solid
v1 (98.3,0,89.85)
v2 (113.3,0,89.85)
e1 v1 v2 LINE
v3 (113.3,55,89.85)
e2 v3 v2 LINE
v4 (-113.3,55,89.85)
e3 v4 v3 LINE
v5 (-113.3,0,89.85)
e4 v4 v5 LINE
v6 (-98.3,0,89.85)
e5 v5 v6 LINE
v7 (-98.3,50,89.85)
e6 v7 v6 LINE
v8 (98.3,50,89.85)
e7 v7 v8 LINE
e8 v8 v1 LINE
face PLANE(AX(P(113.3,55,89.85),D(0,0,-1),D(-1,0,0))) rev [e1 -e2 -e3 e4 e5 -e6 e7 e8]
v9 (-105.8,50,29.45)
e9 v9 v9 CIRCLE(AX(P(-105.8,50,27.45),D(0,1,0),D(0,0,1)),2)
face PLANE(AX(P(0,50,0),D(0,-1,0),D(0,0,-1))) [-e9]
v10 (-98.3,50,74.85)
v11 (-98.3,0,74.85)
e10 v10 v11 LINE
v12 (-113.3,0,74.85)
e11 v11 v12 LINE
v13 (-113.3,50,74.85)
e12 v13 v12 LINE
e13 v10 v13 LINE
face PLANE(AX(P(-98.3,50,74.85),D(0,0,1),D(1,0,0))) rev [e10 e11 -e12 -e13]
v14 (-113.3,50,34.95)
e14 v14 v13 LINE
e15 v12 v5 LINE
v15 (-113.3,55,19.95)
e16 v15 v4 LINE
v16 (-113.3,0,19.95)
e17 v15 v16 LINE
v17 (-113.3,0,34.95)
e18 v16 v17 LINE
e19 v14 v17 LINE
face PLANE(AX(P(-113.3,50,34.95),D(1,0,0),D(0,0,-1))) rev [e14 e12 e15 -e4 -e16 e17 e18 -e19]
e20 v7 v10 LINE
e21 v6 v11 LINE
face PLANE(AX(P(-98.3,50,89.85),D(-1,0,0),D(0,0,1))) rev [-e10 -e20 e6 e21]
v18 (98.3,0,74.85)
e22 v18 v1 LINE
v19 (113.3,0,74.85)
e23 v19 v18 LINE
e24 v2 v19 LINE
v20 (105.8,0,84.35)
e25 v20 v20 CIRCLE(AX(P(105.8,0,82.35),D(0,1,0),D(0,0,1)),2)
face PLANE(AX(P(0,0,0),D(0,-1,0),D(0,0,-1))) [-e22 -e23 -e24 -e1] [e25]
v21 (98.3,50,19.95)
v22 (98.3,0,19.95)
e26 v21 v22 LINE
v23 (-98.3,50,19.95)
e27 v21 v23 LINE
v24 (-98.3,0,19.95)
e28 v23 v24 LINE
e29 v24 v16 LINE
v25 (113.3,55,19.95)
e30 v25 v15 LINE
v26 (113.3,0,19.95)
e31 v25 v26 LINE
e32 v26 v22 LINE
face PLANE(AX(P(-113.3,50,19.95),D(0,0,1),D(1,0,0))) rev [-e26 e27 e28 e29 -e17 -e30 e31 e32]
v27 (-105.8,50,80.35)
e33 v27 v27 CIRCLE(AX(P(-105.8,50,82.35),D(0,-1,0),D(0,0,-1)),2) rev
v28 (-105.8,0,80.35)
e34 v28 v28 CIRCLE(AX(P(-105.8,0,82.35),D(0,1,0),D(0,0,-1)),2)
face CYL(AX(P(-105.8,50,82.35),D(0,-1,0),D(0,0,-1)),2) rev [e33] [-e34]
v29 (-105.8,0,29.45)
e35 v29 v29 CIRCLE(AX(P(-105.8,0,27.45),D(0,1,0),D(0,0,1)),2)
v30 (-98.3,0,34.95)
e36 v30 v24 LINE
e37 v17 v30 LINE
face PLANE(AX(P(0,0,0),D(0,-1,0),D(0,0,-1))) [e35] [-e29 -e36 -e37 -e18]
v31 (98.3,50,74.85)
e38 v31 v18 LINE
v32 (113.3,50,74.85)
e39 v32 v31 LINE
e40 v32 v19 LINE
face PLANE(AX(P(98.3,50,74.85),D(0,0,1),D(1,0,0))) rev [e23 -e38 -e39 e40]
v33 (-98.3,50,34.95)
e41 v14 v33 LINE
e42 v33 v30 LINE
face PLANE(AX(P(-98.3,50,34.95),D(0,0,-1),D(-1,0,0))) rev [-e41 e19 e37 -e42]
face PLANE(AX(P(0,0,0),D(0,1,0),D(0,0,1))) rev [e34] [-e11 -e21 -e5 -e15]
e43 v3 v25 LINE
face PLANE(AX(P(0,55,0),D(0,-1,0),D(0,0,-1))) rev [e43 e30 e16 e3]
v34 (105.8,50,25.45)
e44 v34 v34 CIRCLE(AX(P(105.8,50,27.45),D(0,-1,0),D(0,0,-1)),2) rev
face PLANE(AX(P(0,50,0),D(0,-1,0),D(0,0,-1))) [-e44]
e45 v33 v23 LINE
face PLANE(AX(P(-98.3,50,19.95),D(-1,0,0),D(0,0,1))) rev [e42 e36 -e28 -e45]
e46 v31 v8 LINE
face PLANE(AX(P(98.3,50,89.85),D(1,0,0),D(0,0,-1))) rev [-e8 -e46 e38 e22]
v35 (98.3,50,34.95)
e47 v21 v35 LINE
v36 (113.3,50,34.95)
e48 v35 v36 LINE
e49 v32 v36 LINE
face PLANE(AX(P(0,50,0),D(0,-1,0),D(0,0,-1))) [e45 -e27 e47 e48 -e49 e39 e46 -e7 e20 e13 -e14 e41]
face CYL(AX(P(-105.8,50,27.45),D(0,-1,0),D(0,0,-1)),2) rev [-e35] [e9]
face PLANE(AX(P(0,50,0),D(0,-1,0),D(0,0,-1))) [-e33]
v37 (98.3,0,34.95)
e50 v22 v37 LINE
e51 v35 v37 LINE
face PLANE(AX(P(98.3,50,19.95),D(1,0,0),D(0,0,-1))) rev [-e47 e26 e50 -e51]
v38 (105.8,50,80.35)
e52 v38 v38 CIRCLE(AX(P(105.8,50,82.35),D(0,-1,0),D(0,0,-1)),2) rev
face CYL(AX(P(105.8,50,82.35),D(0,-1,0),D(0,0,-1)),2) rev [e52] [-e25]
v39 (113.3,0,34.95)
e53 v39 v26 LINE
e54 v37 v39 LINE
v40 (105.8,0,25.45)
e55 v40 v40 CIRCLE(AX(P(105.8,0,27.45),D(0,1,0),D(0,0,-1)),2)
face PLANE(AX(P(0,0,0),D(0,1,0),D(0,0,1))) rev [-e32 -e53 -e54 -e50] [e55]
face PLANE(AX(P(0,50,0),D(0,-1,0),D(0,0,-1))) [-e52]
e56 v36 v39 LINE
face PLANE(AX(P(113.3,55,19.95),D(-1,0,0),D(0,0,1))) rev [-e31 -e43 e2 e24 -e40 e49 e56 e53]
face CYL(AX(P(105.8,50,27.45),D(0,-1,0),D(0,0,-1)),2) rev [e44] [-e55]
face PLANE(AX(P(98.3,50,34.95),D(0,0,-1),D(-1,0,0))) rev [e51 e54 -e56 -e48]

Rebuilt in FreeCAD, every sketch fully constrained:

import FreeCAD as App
import Part
import Sketcher
from FreeCAD import Vector


def add_polygon(sketch, points):
    """Adds a closed chain of lines whose ends are joined by coincident constraints."""
    first, n = sketch.GeometryCount, len(points)
    for a, b in zip(points, points[1:] + points[:1]):
        sketch.addGeometry(Part.LineSegment(App.Vector(*a, 0), App.Vector(*b, 0)), False)
    for i in range(n):
        sketch.addConstraint(Sketcher.Constraint("Coincident", first + i, 2, first + (i + 1) % n, 1))

doc = App.newDocument("Part")
body = doc.addObject("PartDesign::Body", "Body")

# Sketch on XZ plane
sketch1 = body.newObject("Sketcher::SketchObject", "Sketch")
sketch1.AttachmentSupport = (doc.getObject("XZ_Plane"), [""])
sketch1.MapMode = "FlatFace"
add_polygon(sketch1, [(-113.3, 19.9), (-113.3, 35), (-98.3, 35), (-98.3, 19.9)])  # lines 0-3
sketch1.addGeometry(Part.Circle(Vector(-105.8, 27.4, 0), Vector(0, 0, 1), 2), False)  # 4
sketch1.addConstraint([
    Sketcher.Constraint("Vertical", 0),
    Sketcher.Constraint("Horizontal", 1),
    Sketcher.Constraint("Vertical", 2),
    Sketcher.Constraint("Horizontal", 3),
    Sketcher.Constraint("Equal", 3, 0),
    Sketcher.Constraint("Diameter", 4, 4.0),
    Sketcher.Constraint("DistanceX", 1, 1, 1, 2, 15.0),
    Sketcher.Constraint("DistanceX", 4, 3, -1, 1, 105.8),
    Sketcher.Constraint("DistanceX", 0, 2, -1, 1, 113.3),
    Sketcher.Constraint("DistanceY", 4, 3, 0, 2, 7.5),
    Sketcher.Constraint("DistanceY", -1, 1, 4, 3, 27.45),
])
pad1 = body.newObject("PartDesign::Pad", "Pad")
pad1.Profile = sketch1
pad1.Length = 50
pad1.Reversed = True
body2 = doc.addObject("PartDesign::Body", "Body001")

# Sketch on XZ plane
sketch2 = body2.newObject("Sketcher::SketchObject", "Sketch001")
sketch2.AttachmentSupport = (doc.getObject("XZ_Plane001"), [""])
sketch2.MapMode = "FlatFace"
add_polygon(sketch2, [(-113.3, 74.8), (-113.3, 89.8), (-98.3, 89.8), (-98.3, 74.8)])  # lines 0-3
sketch2.addGeometry(Part.Circle(Vector(-105.8, 82.3, 0), Vector(0, 0, 1), 2), False)  # 4
sketch2.addConstraint([
    Sketcher.Constraint("Vertical", 0),
    Sketcher.Constraint("Horizontal", 1),
    Sketcher.Constraint("Vertical", 2),
    Sketcher.Constraint("Horizontal", 3),
    Sketcher.Constraint("Equal", 3, 0),
    Sketcher.Constraint("Diameter", 4, 4.0),
    Sketcher.Constraint("DistanceX", 1, 1, 1, 2, 15.0),
    Sketcher.Constraint("DistanceX", 4, 3, -1, 1, 105.8),
    Sketcher.Constraint("DistanceX", 0, 2, -1, 1, 113.3),
    Sketcher.Constraint("DistanceY", 4, 3, 0, 2, 7.5),
    Sketcher.Constraint("DistanceY", -1, 1, 4, 3, 82.35),
])
pad2 = body2.newObject("PartDesign::Pad", "Pad001")
pad2.Profile = sketch2
pad2.Length = 50
pad2.Reversed = True
body3 = doc.addObject("PartDesign::Body", "Body002")

# Sketch on XZ plane
sketch3 = body3.newObject("Sketcher::SketchObject", "Sketch002")
sketch3.AttachmentSupport = (doc.getObject("XZ_Plane002"), [""])
sketch3.MapMode = "FlatFace"
add_polygon(sketch3, [(113.3, 74.8), (98.3, 74.8), (98.3, 89.8), (113.3, 89.8)])  # lines 0-3
sketch3.addGeometry(Part.Circle(Vector(105.8, 82.3, 0), Vector(0, 0, 1), 2), False)  # 4
sketch3.addConstraint([
    Sketcher.Constraint("Horizontal", 0),
    Sketcher.Constraint("Vertical", 1),
    Sketcher.Constraint("Horizontal", 2),
    Sketcher.Constraint("Vertical", 3),
    Sketcher.Constraint("Equal", 2, 1),
    Sketcher.Constraint("Diameter", 4, 4.0),
    Sketcher.Constraint("DistanceX", 0, 2, 0, 1, 15.0),
    Sketcher.Constraint("DistanceX", -1, 1, 4, 3, 105.8),
    Sketcher.Constraint("DistanceX", -1, 1, 0, 2, 98.3),
    Sketcher.Constraint("DistanceY", 0, 2, 4, 3, 7.5),
    Sketcher.Constraint("DistanceY", -1, 1, 4, 3, 82.35),
])
pad3 = body3.newObject("PartDesign::Pad", "Pad002")
pad3.Profile = sketch3
pad3.Length = 50
pad3.Reversed = True
body4 = doc.addObject("PartDesign::Body", "Body003")

# Sketch on XZ plane
sketch4 = body4.newObject("Sketcher::SketchObject", "Sketch003")
sketch4.AttachmentSupport = (doc.getObject("XZ_Plane003"), [""])
sketch4.MapMode = "FlatFace"
add_polygon(sketch4, [(113.3, 35), (113.3, 19.9), (98.3, 19.9), (98.3, 35)])  # lines 0-3
sketch4.addGeometry(Part.Circle(Vector(105.8, 27.4, 0), Vector(0, 0, 1), 2), False)  # 4
sketch4.addConstraint([
    Sketcher.Constraint("Vertical", 0),
    Sketcher.Constraint("Horizontal", 1),
    Sketcher.Constraint("Vertical", 2),
    Sketcher.Constraint("Horizontal", 3),
    Sketcher.Constraint("Equal", 3, 0),
    Sketcher.Constraint("Diameter", 4, 4.0),
    Sketcher.Constraint("DistanceX", 1, 2, 1, 1, 15.0),
    Sketcher.Constraint("DistanceX", -1, 1, 4, 3, 105.8),
    Sketcher.Constraint("DistanceX", -1, 1, 0, 2, 113.3),
    Sketcher.Constraint("DistanceY", 0, 2, 4, 3, 7.5),
    Sketcher.Constraint("DistanceY", -1, 1, 4, 3, 27.45),
])
pad4 = body4.newObject("PartDesign::Pad", "Pad003")
pad4.Profile = sketch4
pad4.Length = 50
pad4.Reversed = True
body.AllowCompound = True
doc.recompute()

boolean = body.newObject("PartDesign::Boolean", "Boolean")
boolean.Type = "Fuse"
boolean.addObjects([body2])
doc.recompute()

boolean2 = body.newObject("PartDesign::Boolean", "Boolean001")
boolean2.Type = "Fuse"
boolean2.addObjects([body3])
doc.recompute()

boolean3 = body.newObject("PartDesign::Boolean", "Boolean002")
boolean3.Type = "Fuse"
boolean3.addObjects([body4])

# Sketch on XZ plane
sketch5 = body.newObject("Sketcher::SketchObject", "Sketch004")
sketch5.AttachmentSupport = (doc.getObject("XZ_Plane"), [""])
sketch5.MapMode = "FlatFace"
sketch5.AttachmentOffset = App.Placement(Vector(0, 0, -50), App.Rotation())
add_polygon(sketch5, [(-113, 20), (-113, 90), (113, 90), (113, 20)])  # lines 0-3
sketch5.addConstraint([
    Sketcher.Constraint("Vertical", 0),
    Sketcher.Constraint("Horizontal", 1),
    Sketcher.Constraint("Vertical", 2),
    Sketcher.Constraint("Horizontal", 3),
    Sketcher.Constraint("DistanceX", 1, 1, 1, 2, 226.6),
    Sketcher.Constraint("DistanceY", 0, 1, 0, 2, 69.9),
    Sketcher.Constraint("DistanceX", 0, 2, -1, 1, 113.3),
    Sketcher.Constraint("DistanceY", -1, 1, 0, 2, 89.85),
])
pad5 = body.newObject("PartDesign::Pad", "Pad004")
pad5.Profile = sketch5
pad5.Length = 5
pad5.Reversed = True

doc.recompute()
